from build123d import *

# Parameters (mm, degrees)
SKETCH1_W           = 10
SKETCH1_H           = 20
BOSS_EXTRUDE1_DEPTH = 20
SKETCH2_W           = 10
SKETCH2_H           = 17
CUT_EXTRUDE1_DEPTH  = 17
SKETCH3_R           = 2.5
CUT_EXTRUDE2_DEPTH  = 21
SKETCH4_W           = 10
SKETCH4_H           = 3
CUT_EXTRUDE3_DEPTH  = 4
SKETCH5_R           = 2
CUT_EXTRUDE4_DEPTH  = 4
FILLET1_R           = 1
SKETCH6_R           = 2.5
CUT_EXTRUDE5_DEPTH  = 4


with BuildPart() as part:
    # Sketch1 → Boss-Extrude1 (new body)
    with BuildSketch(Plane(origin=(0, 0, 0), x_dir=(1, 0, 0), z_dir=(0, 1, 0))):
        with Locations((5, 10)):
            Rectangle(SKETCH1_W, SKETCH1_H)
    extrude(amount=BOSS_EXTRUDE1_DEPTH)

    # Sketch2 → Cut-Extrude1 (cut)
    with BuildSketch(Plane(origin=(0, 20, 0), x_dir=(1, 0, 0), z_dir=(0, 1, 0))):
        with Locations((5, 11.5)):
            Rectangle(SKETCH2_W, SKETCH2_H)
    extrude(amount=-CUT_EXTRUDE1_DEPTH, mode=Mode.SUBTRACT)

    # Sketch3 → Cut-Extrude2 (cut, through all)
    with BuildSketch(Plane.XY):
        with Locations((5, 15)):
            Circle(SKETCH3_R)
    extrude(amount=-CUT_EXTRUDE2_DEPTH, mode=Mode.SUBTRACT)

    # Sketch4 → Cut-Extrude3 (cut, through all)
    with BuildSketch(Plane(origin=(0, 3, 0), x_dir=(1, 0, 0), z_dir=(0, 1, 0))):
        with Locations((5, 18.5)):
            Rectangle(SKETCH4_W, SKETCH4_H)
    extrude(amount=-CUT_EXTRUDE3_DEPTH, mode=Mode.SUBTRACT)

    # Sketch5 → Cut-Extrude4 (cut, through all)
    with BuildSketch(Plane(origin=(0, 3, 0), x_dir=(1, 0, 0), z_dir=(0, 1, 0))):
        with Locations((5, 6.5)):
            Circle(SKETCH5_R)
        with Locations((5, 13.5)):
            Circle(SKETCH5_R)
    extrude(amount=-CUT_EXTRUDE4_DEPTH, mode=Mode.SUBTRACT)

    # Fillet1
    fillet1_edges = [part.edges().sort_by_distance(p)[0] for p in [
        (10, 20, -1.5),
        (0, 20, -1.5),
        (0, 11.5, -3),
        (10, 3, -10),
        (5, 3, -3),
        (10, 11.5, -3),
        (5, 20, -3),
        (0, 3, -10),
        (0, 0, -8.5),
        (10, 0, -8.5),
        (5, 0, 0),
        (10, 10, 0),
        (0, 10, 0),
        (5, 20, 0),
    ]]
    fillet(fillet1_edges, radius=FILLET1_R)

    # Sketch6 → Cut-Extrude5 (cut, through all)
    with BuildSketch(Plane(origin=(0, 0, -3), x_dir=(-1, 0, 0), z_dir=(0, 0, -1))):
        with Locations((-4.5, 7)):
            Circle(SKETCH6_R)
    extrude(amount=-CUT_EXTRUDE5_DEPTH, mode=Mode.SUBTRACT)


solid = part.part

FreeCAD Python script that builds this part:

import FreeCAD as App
import Part
import Sketcher

V = App.Vector
Q = App.Units.Quantity


def edges_at(feature, points):
    """Names of the edges that pass closest to the given points."""
    edges = feature.Shape.Edges
    near = lambda p: min(range(len(edges)), key=lambda i: edges[i].distToShape(Part.Vertex(*p))[0])
    return sorted({f"Edge{near(p) + 1}" for p in points})

doc = App.newDocument("Part")
body = doc.addObject("PartDesign::Body", "Body")

sketch1 = body.newObject("Sketcher::SketchObject", "Sketch")
sketch1.AttachmentSupport = (doc.getObject("XZ_Plane"), [""])
sketch1.MapMode = "FlatFace"
sketch1.addGeometry([
    Part.LineSegment(V(0, -20, 0), V(0, 0, 0)),
    Part.LineSegment(V(0, 0, 0), V(10, 0, 0)),
    Part.LineSegment(V(10, 0, 0), V(10, -20, 0)),
    Part.LineSegment(V(10, -20, 0), V(0, -20, 0)),
], False)
sketch1.addConstraint([
    Sketcher.Constraint("Coincident", 0, 2, 1, 1),
    Sketcher.Constraint("Coincident", 1, 2, 2, 1),
    Sketcher.Constraint("Coincident", 2, 2, 3, 1),
    Sketcher.Constraint("Coincident", 3, 2, 0, 1),
    Sketcher.Constraint("Vertical", 0),
    Sketcher.Constraint("Horizontal", 1),
    Sketcher.Constraint("Vertical", 2),
    Sketcher.Constraint("Horizontal", 3),
    Sketcher.Constraint("Coincident", 0, 2, -1, 1),
    Sketcher.Constraint("DistanceX", 1, 1, 1, 2, Q("10 mm")),
    Sketcher.Constraint("DistanceY", 0, 1, 0, 2, Q("20 mm")),
])
pad1 = body.newObject("PartDesign::Pad", "Pad")
pad1.Profile = sketch1
pad1.Length = 20
pad1.Reversed = True

sketch2 = body.newObject("Sketcher::SketchObject", "Sketch001")
sketch2.AttachmentSupport = (doc.getObject("XZ_Plane"), [""])
sketch2.MapMode = "FlatFace"
sketch2.AttachmentOffset = App.Placement(V(0, 0, -20), App.Rotation())
sketch2.addGeometry([
    Part.LineSegment(V(0, -20, 0), V(0, -3, 0)),
    Part.LineSegment(V(0, -3, 0), V(10, -3, 0)),
    Part.LineSegment(V(10, -3, 0), V(10, -20, 0)),
    Part.LineSegment(V(10, -20, 0), V(0, -20, 0)),
], False)
sketch2.addConstraint([
    Sketcher.Constraint("Coincident", 0, 2, 1, 1),
    Sketcher.Constraint("Coincident", 1, 2, 2, 1),
    Sketcher.Constraint("Coincident", 2, 2, 3, 1),
    Sketcher.Constraint("Coincident", 3, 2, 0, 1),
    Sketcher.Constraint("Vertical", 0),
    Sketcher.Constraint("Horizontal", 1),
    Sketcher.Constraint("Vertical", 2),
    Sketcher.Constraint("Horizontal", 3),
    Sketcher.Constraint("PointOnObject", 0, 2, -2),
    Sketcher.Constraint("DistanceX", 1, 1, 1, 2, Q("10 mm")),
    Sketcher.Constraint("DistanceY", 0, 1, 0, 2, Q("17 mm")),
    Sketcher.Constraint("DistanceY", 0, 2, -1, 1, Q("3 mm")),
])
pocket1 = body.newObject("PartDesign::Pocket", "Pocket")
pocket1.Profile = sketch2
pocket1.Length = 17
pocket1.Reversed = True

sketch3 = body.newObject("Sketcher::SketchObject", "Sketch002")
sketch3.AttachmentSupport = (doc.getObject("XY_Plane"), [""])
sketch3.MapMode = "FlatFace"
sketch3.addGeometry(Part.Circle(V(5, 15, 0), V(0, 0, 1), 2.5), False)
sketch3.addConstraint([
    Sketcher.Constraint("Diameter", 0, Q("5 mm")),
    Sketcher.Constraint("DistanceX", -1, 1, 0, 3, Q("5 mm")),
    Sketcher.Constraint("DistanceY", -1, 1, 0, 3, Q("15 mm")),
])
pocket2 = body.newObject("PartDesign::Pocket", "Pocket001")
pocket2.Profile = sketch3
pocket2.Type = "ThroughAll"

sketch4 = body.newObject("Sketcher::SketchObject", "Sketch003")
sketch4.AttachmentSupport = (doc.getObject("XZ_Plane"), [""])
sketch4.MapMode = "FlatFace"
sketch4.AttachmentOffset = App.Placement(V(0, 0, -3), App.Rotation())
sketch4.addGeometry([
    Part.LineSegment(V(0, -20, 0), V(0, -17, 0)),
    Part.LineSegment(V(0, -17, 0), V(10, -17, 0)),
    Part.LineSegment(V(10, -17, 0), V(10, -20, 0)),
    Part.LineSegment(V(10, -20, 0), V(0, -20, 0)),
], False)
sketch4.addConstraint([
    Sketcher.Constraint("Coincident", 0, 2, 1, 1),
    Sketcher.Constraint("Coincident", 1, 2, 2, 1),
    Sketcher.Constraint("Coincident", 2, 2, 3, 1),
    Sketcher.Constraint("Coincident", 3, 2, 0, 1),
    Sketcher.Constraint("Vertical", 0),
    Sketcher.Constraint("Horizontal", 1),
    Sketcher.Constraint("Vertical", 2),
    Sketcher.Constraint("Horizontal", 3),
    Sketcher.Constraint("PointOnObject", 0, 2, -2),
    Sketcher.Constraint("DistanceX", 1, 1, 1, 2, Q("10 mm")),
    Sketcher.Constraint("DistanceY", 0, 1, 0, 2, Q("3 mm")),
    Sketcher.Constraint("DistanceY", 0, 2, -1, 1, Q("17 mm")),
])
pocket3 = body.newObject("PartDesign::Pocket", "Pocket002")
pocket3.Profile = sketch4
pocket3.Type = "ThroughAll"
pocket3.Reversed = True

sketch5 = body.newObject("Sketcher::SketchObject", "Sketch004")
sketch5.AttachmentSupport = (doc.getObject("XZ_Plane"), [""])
sketch5.MapMode = "FlatFace"
sketch5.AttachmentOffset = App.Placement(V(0, 0, -3), App.Rotation())
sketch5.addGeometry([
    Part.Circle(V(5, -6.5, 0), V(0, 0, 1), 2),
    Part.Circle(V(5, -13.5, 0), V(0, 0, 1), 2),
], False)
sketch5.addConstraint([
    Sketcher.Constraint("Equal", 0, 1),
    Sketcher.Constraint("Vertical", 0, 3, 1, 3),
    Sketcher.Constraint("Diameter", 0, Q("4 mm")),
    Sketcher.Constraint("DistanceX", -1, 1, 0, 3, Q("5 mm")),
    Sketcher.Constraint("DistanceY", 1, 3, 0, 3, Q("7 mm")),
    Sketcher.Constraint("DistanceY", 0, 3, -1, 1, Q("6.5 mm")),
])
pocket4 = body.newObject("PartDesign::Pocket", "Pocket003")
pocket4.Profile = sketch5
pocket4.Type = "ThroughAll"
pocket4.Reversed = True
doc.recompute()

fillet = body.newObject("PartDesign::Fillet", "Fillet")
fillet.Base = (pocket4, edges_at(pocket4, [
    (10, 20, -1.5),
    (0, 20, -1.5),
    (0, 11.5, -3),
    (10, 3, -10),
    (5, 3, -3),
    (10, 11.5, -3),
    (5, 20, -3),
    (0, 3, -10),
    (0, 0, -8.5),
    (10, 0, -8.5),
    (5, 0, 0),
    (10, 10, 0),
    (0, 10, 0),
    (5, 20, 0),
]))
fillet.Radius = 1

sketch6 = body.newObject("Sketcher::SketchObject", "Sketch005")
sketch6.AttachmentSupport = (doc.getObject("XY_Plane"), [""])
sketch6.MapMode = "FlatFace"
sketch6.AttachmentOffset = App.Placement(V(0, 0, -3), App.Rotation())
sketch6.addGeometry(Part.Circle(V(4.5, 7, 0), V(0, 0, 1), 2.5), False)
sketch6.addConstraint([
    Sketcher.Constraint("Diameter", 0, Q("5 mm")),
    Sketcher.Constraint("DistanceY", -1, 1, 0, 3, Q("7 mm")),
    Sketcher.Constraint("DistanceX", -1, 1, 0, 3, Q("4.5 mm")),
])
pocket5 = body.newObject("PartDesign::Pocket", "Pocket004")
pocket5.Profile = sketch6
pocket5.Type = "ThroughAll"
pocket5.Reversed = True

doc.recompute()
